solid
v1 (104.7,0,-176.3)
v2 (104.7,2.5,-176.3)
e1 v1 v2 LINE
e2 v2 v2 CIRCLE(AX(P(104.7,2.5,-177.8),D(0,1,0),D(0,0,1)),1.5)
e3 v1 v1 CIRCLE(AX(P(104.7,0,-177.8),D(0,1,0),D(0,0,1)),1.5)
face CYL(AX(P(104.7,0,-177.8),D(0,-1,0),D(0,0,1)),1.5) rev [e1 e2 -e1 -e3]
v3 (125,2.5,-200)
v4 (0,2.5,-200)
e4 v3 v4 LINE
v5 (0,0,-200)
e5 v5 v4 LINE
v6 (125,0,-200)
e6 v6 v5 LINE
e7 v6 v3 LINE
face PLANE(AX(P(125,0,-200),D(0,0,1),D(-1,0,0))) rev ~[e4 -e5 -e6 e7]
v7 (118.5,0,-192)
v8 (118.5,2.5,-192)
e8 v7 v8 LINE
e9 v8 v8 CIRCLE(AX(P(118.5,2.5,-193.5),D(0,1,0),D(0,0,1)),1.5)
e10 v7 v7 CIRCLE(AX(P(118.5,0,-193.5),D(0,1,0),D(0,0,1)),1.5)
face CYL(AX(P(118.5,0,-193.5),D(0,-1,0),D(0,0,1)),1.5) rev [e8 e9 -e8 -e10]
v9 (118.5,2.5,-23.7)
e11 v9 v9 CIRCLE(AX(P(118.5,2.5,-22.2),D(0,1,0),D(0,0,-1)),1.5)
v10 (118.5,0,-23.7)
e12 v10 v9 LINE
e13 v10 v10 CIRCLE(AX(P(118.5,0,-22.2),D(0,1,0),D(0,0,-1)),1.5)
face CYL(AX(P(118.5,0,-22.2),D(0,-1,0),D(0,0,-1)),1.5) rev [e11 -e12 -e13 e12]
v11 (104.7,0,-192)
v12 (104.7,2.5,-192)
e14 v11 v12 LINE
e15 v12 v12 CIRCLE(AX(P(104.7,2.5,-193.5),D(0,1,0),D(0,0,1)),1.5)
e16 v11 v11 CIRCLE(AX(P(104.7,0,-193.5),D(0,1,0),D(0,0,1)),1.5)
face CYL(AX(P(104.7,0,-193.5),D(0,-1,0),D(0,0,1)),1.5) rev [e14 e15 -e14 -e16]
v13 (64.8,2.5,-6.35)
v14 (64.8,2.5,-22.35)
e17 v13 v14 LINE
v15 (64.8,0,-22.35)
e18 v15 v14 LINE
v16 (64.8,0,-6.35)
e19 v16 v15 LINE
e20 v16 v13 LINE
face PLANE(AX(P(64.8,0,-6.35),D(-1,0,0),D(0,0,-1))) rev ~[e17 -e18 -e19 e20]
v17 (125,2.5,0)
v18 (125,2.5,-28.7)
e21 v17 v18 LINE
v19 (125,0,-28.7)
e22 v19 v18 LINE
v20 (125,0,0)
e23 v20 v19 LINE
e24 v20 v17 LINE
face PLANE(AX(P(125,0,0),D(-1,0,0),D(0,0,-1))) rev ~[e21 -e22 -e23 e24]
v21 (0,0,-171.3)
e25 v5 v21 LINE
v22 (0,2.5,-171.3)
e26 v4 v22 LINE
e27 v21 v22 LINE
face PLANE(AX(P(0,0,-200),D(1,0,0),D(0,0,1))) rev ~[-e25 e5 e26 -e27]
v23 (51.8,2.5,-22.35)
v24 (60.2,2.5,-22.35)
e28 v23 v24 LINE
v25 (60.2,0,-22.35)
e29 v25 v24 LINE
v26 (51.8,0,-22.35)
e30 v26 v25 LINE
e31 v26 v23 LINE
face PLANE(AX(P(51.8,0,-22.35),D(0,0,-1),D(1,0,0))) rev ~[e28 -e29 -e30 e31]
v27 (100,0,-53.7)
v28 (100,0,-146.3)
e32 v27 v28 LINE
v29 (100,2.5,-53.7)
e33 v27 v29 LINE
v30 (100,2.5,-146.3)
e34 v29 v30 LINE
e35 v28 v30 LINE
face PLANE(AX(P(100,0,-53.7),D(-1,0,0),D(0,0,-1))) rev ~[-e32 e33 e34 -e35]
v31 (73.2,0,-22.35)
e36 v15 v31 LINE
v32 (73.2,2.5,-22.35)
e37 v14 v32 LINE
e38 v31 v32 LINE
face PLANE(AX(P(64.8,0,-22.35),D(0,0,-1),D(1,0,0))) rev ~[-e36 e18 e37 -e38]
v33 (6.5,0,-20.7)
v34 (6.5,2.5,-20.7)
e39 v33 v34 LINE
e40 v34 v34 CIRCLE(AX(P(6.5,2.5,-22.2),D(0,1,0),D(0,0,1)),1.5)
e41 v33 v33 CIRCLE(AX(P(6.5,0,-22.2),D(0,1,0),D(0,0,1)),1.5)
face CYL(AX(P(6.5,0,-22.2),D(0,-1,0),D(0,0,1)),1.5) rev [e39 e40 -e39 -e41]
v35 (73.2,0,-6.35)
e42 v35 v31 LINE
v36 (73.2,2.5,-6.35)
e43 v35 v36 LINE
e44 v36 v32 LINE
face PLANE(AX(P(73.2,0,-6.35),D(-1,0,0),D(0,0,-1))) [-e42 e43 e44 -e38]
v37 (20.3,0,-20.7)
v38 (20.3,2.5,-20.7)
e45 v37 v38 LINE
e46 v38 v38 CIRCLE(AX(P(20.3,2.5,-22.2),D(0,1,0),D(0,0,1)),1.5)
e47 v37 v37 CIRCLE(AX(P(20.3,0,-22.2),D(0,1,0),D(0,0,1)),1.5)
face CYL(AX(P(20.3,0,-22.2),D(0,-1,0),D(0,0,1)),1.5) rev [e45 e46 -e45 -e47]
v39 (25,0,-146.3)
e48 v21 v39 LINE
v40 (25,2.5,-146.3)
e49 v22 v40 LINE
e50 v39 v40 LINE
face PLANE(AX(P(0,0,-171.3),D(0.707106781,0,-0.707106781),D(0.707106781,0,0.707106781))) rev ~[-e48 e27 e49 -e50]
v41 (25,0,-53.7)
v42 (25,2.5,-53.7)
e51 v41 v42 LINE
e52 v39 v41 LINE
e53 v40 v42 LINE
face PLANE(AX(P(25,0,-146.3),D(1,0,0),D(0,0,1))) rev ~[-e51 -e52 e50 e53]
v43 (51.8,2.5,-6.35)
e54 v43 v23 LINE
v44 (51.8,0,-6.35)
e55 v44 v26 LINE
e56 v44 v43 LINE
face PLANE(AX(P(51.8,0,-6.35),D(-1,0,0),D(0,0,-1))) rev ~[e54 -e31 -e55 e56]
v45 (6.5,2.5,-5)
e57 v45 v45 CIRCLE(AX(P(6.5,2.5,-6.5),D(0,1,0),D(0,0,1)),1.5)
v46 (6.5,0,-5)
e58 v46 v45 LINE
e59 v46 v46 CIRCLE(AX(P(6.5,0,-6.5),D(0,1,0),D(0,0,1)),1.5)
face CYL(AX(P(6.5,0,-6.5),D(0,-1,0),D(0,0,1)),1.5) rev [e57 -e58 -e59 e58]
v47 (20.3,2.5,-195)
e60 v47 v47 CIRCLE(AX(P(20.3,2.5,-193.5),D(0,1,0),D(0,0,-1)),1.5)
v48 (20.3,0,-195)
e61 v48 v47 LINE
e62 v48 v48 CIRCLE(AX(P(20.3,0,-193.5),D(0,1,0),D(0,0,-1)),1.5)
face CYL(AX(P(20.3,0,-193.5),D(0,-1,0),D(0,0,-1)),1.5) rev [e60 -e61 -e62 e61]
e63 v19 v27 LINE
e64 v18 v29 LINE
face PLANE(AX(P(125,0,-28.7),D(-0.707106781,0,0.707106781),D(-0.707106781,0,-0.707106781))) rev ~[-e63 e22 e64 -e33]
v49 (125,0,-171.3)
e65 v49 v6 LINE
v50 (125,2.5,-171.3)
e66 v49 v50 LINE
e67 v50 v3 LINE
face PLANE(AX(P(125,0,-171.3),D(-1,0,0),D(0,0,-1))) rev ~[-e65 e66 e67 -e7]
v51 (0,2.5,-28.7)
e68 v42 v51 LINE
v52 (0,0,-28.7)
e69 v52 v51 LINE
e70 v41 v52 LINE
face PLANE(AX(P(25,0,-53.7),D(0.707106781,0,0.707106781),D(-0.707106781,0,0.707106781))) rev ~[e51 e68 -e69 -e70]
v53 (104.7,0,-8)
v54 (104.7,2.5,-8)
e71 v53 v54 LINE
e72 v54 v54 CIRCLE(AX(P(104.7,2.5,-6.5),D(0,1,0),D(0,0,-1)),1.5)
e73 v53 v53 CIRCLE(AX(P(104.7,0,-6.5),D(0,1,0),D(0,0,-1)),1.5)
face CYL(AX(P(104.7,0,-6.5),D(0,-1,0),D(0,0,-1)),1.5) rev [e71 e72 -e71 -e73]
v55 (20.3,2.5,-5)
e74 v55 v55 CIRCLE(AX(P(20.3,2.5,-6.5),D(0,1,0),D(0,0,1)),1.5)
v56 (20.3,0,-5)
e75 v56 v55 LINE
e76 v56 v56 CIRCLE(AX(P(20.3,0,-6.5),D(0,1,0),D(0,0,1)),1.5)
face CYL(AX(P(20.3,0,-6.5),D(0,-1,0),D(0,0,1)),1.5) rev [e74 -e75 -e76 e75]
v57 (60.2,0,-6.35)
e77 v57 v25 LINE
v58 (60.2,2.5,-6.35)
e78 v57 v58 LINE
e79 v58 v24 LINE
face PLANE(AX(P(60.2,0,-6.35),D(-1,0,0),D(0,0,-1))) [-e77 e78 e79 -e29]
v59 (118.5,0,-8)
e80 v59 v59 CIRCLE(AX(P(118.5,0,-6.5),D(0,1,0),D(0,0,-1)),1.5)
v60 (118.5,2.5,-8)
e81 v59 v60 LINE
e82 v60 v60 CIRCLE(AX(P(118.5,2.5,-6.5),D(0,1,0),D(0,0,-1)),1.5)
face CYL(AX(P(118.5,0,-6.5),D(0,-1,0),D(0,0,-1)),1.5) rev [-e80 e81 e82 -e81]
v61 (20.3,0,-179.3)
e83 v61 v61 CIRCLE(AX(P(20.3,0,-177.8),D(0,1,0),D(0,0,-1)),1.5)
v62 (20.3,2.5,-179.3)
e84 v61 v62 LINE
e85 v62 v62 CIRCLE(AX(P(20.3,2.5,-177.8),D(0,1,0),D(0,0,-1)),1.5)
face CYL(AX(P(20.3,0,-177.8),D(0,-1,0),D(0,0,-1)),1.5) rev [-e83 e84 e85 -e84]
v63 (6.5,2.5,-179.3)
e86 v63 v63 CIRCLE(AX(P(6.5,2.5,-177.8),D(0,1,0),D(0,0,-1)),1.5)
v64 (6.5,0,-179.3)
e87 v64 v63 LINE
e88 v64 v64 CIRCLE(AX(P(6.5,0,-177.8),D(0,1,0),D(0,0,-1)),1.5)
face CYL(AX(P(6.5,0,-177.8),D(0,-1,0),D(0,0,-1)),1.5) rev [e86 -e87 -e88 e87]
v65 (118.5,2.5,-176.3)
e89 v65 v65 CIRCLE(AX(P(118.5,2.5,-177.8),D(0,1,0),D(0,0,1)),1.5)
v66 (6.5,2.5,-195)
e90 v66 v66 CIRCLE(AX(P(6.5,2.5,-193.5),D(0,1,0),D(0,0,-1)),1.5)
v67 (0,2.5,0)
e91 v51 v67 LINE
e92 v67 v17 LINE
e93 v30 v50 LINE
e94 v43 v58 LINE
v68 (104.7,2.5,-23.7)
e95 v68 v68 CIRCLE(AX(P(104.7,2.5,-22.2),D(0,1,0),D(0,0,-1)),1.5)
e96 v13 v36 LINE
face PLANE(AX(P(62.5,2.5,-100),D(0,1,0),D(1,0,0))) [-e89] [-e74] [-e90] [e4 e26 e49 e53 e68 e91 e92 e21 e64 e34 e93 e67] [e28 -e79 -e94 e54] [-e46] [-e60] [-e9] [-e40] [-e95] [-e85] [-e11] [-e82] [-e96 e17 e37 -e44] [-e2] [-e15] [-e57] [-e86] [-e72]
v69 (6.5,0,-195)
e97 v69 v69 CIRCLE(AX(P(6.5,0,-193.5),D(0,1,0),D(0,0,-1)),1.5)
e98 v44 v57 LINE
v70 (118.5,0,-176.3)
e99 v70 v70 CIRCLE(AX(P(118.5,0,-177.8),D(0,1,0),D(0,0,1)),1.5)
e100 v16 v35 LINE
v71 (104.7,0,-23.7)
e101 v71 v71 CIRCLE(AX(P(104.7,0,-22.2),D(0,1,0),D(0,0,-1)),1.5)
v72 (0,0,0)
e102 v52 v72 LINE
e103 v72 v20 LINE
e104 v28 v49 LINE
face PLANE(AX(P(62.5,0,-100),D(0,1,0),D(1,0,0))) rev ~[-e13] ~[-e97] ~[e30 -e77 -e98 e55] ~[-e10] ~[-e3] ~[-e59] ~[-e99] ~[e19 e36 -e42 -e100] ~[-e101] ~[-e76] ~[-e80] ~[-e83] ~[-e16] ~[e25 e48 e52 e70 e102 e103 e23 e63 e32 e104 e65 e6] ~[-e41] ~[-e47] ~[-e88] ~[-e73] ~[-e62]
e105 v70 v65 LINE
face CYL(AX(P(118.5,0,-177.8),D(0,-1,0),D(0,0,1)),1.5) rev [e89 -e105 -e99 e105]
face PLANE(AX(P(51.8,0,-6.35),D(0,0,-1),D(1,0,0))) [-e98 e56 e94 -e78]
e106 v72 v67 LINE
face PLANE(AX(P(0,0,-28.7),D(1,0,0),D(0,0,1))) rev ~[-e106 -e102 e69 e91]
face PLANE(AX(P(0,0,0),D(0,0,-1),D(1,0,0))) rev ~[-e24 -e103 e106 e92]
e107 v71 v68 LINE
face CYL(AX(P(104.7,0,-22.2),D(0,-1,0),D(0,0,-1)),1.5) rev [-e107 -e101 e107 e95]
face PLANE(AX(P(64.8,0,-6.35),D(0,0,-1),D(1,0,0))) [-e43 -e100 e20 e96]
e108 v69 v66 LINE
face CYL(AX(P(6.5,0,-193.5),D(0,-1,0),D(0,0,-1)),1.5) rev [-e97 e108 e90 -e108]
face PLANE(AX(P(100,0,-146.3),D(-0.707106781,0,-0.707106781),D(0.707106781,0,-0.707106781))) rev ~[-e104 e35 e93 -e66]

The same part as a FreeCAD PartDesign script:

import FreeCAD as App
import Part
import Sketcher
Q = App.Units.Quantity


def add_polygon(sketch, points):
    """Adds a closed chain of lines whose ends are joined by coincident constraints."""
    first, n = sketch.GeometryCount, len(points)
    for a, b in zip(points, points[1:] + points[:1]):
        sketch.addGeometry(Part.LineSegment(App.Vector(*a, 0), App.Vector(*b, 0)), False)
    for i in range(n):
        sketch.addConstraint(Sketcher.Constraint("Coincident", first + i, 2, first + (i + 1) % n, 1))

doc = App.newDocument("Part")
params = doc.addObject("Spreadsheet::Sheet", "Params")
for row, (alias, value) in enumerate([
    ("sketch1_diameter", "3 mm"),
    ("sketch1_width", "125 mm"),
    ("sketch1_height", "16 mm"),
    ("sketch1_width2", "8.4 mm"),
    ("sketch1_height2", "28.7 mm"),
    ("pad1_length", "2.5 mm"),
], start=1):
    params.set(f"A{row}", alias)
    params.set(f"B{row}", "=" + value)
    params.setAlias(f"B{row}", alias)

body = doc.addObject("PartDesign::Body", "Body")

# Sketch on XZ plane
sketch1 = doc.addObject("Sketcher::SketchObject", "Sketch")
body.addObject(sketch1)
sketch1.AttachmentSupport = (doc.XZ_Plane, [""])
sketch1.MapMode = "FlatFace"
add_polygon(sketch1, [(0, 0), (125, 0), (125, -28.7), (100, -53.7), (100, -146.3), (125, -171.3), (125, -200), (0, -200), (0, -171.3), (25, -146.3), (25, -53.7), (0, -28.7)])  # lines 0-11
sketch1.addGeometry(Part.Circle(App.Vector(6.5, -6.5, 0), App.Vector(0, 0, 1), 1.5), False)  # 12
sketch1.addGeometry(Part.Circle(App.Vector(6.5, -22.2, 0), App.Vector(0, 0, 1), 1.5), False)  # 13
sketch1.addGeometry(Part.Circle(App.Vector(20.3, -6.5, 0), App.Vector(0, 0, 1), 1.5), False)  # 14
sketch1.addGeometry(Part.Circle(App.Vector(20.3, -22.2, 0), App.Vector(0, 0, 1), 1.5), False)  # 15
add_polygon(sketch1, [(60.2, -6.3), (51.8, -6.3), (51.8, -22.4), (60.2, -22.4)])  # lines 16-19
add_polygon(sketch1, [(73.2, -6.3), (64.8, -6.3), (64.8, -22.4), (73.2, -22.4)])  # lines 20-23
sketch1.addGeometry(Part.Circle(App.Vector(104.7, -6.5, 0), App.Vector(0, 0, 1), 1.5), False)  # 24
sketch1.addGeometry(Part.Circle(App.Vector(104.7, -22.2, 0), App.Vector(0, 0, 1), 1.5), False)  # 25
sketch1.addGeometry(Part.Circle(App.Vector(118.5, -6.5, 0), App.Vector(0, 0, 1), 1.5), False)  # 26
sketch1.addGeometry(Part.Circle(App.Vector(118.5, -22.2, 0), App.Vector(0, 0, 1), 1.5), False)  # 27
sketch1.addGeometry(Part.Circle(App.Vector(6.5, -177.8, 0), App.Vector(0, 0, 1), 1.5), False)  # 28
sketch1.addGeometry(Part.Circle(App.Vector(6.5, -193.5, 0), App.Vector(0, 0, 1), 1.5), False)  # 29
sketch1.addGeometry(Part.Circle(App.Vector(20.3, -177.8, 0), App.Vector(0, 0, 1), 1.5), False)  # 30
sketch1.addGeometry(Part.Circle(App.Vector(20.3, -193.5, 0), App.Vector(0, 0, 1), 1.5), False)  # 31
sketch1.addGeometry(Part.Circle(App.Vector(104.7, -177.8, 0), App.Vector(0, 0, 1), 1.5), False)  # 32
sketch1.addGeometry(Part.Circle(App.Vector(104.7, -193.5, 0), App.Vector(0, 0, 1), 1.5), False)  # 33
sketch1.addGeometry(Part.Circle(App.Vector(118.5, -177.8, 0), App.Vector(0, 0, 1), 1.5), False)  # 34
sketch1.addGeometry(Part.Circle(App.Vector(118.5, -193.5, 0), App.Vector(0, 0, 1), 1.5), False)  # 35
sketch1.addConstraint(Sketcher.Constraint("Horizontal", 0))
sketch1.addConstraint(Sketcher.Constraint("Vertical", 1))
sketch1.addConstraint(Sketcher.Constraint("Vertical", 3))
sketch1.addConstraint(Sketcher.Constraint("Vertical", 5))
sketch1.addConstraint(Sketcher.Constraint("Horizontal", 6))
sketch1.addConstraint(Sketcher.Constraint("Vertical", 7))
sketch1.addConstraint(Sketcher.Constraint("Vertical", 9))
sketch1.addConstraint(Sketcher.Constraint("Vertical", 11))
sketch1.addConstraint(Sketcher.Constraint("Horizontal", 16))
sketch1.addConstraint(Sketcher.Constraint("Vertical", 17))
sketch1.addConstraint(Sketcher.Constraint("Horizontal", 18))
sketch1.addConstraint(Sketcher.Constraint("Vertical", 19))
sketch1.addConstraint(Sketcher.Constraint("Horizontal", 20))
sketch1.addConstraint(Sketcher.Constraint("Vertical", 21))
sketch1.addConstraint(Sketcher.Constraint("Horizontal", 22))
sketch1.addConstraint(Sketcher.Constraint("Vertical", 23))
sketch1.addConstraint(Sketcher.Constraint("Coincident", 11, 2, -1, 1))
sketch1.addConstraint(Sketcher.Constraint("Equal", 12, 13))
sketch1.addConstraint(Sketcher.Constraint("Equal", 13, 14))
sketch1.addConstraint(Sketcher.Constraint("Equal", 14, 15))
sketch1.addConstraint(Sketcher.Constraint("Equal", 15, 24))
sketch1.addConstraint(Sketcher.Constraint("Equal", 24, 25))
sketch1.addConstraint(Sketcher.Constraint("Equal", 25, 26))
sketch1.addConstraint(Sketcher.Constraint("Equal", 26, 27))
sketch1.addConstraint(Sketcher.Constraint("Equal", 27, 28))
sketch1.addConstraint(Sketcher.Constraint("Equal", 28, 29))
sketch1.addConstraint(Sketcher.Constraint("Equal", 29, 30))
sketch1.addConstraint(Sketcher.Constraint("Equal", 30, 31))
sketch1.addConstraint(Sketcher.Constraint("Equal", 31, 32))
sketch1.addConstraint(Sketcher.Constraint("Equal", 32, 33))
sketch1.addConstraint(Sketcher.Constraint("Equal", 33, 34))
sketch1.addConstraint(Sketcher.Constraint("Equal", 34, 35))
sketch1.addConstraint(Sketcher.Constraint("PointOnObject", 6, 2, -2))
sketch1.addConstraint(Sketcher.Constraint("Perpendicular", 2, 4))
sketch1.addConstraint(Sketcher.Constraint("Perpendicular", 4, 8))
sketch1.addConstraint(Sketcher.Constraint("Perpendicular", 8, 10))
sketch1.addConstraint(Sketcher.Constraint("Horizontal", 12, 3, 14, 3))
sketch1.addConstraint(Sketcher.Constraint("Horizontal", 13, 3, 15, 3))
sketch1.addConstraint(Sketcher.Constraint("Horizontal", 14, 3, 24, 3))
sketch1.addConstraint(Sketcher.Constraint("Horizontal", 15, 3, 25, 3))
sketch1.addConstraint(Sketcher.Constraint("Horizontal", 24, 3, 26, 3))
sketch1.addConstraint(Sketcher.Constraint("Horizontal", 25, 3, 27, 3))
sketch1.addConstraint(Sketcher.Constraint("Horizontal", 28, 3, 30, 3))
sketch1.addConstraint(Sketcher.Constraint("Horizontal", 29, 3, 31, 3))
sketch1.addConstraint(Sketcher.Constraint("Horizontal", 30, 3, 32, 3))
sketch1.addConstraint(Sketcher.Constraint("Horizontal", 31, 3, 33, 3))
sketch1.addConstraint(Sketcher.Constraint("Horizontal", 32, 3, 34, 3))
sketch1.addConstraint(Sketcher.Constraint("Horizontal", 33, 3, 35, 3))
sketch1.addConstraint(Sketcher.Constraint("Horizontal", 4, 2, 7, 2))
sketch1.addConstraint(Sketcher.Constraint("Horizontal", 3, 2, 8, 2))
sketch1.addConstraint(Sketcher.Constraint("Horizontal", 2, 2, 9, 2))
sketch1.addConstraint(Sketcher.Constraint("Horizontal", 1, 2, 10, 2))
sketch1.addConstraint(Sketcher.Constraint("Horizontal", 19, 2, 20, 2))
sketch1.addConstraint(Sketcher.Constraint("Horizontal", 18, 2, 21, 2))
sketch1.addConstraint(Sketcher.Constraint("Vertical", 12, 3, 13, 3))
sketch1.addConstraint(Sketcher.Constraint("Vertical", 14, 3, 15, 3))
sketch1.addConstraint(Sketcher.Constraint("Vertical", 24, 3, 25, 3))
sketch1.addConstraint(Sketcher.Constraint("Vertical", 26, 3, 27, 3))
sketch1.addConstraint(Sketcher.Constraint("Vertical", 13, 3, 28, 3))
sketch1.addConstraint(Sketcher.Constraint("Vertical", 28, 3, 29, 3))
sketch1.addConstraint(Sketcher.Constraint("Vertical", 15, 3, 30, 3))
sketch1.addConstraint(Sketcher.Constraint("Vertical", 30, 3, 31, 3))
sketch1.addConstraint(Sketcher.Constraint("Vertical", 25, 3, 32, 3))
sketch1.addConstraint(Sketcher.Constraint("Vertical", 32, 3, 33, 3))
sketch1.addConstraint(Sketcher.Constraint("Vertical", 27, 3, 34, 3))
sketch1.addConstraint(Sketcher.Constraint("Vertical", 34, 3, 35, 3))
sketch1.addConstraint(Sketcher.Constraint("Vertical", 1, 2, 4, 2))
sketch1.addConstraint(Sketcher.Constraint("Equal", 18, 20))
sketch1.addConstraint(Sketcher.Constraint("Equal", 1, 5))
sketch1.addConstraint(Sketcher.Constraint("Diameter", 12, Q("3 mm")))
sketch1.addConstraint(Sketcher.Constraint("DistanceX", 0, 1, 0, 2, Q("125 mm")))
sketch1.addConstraint(Sketcher.Constraint("DistanceY", 17, 2, 17, 1, Q("16 mm")))
sketch1.addConstraint(Sketcher.Constraint("DistanceX", 16, 2, 16, 1, Q("8.4 mm")))
sketch1.addConstraint(Sketcher.Constraint("DistanceY", 1, 2, 1, 1, Q("28.7 mm")))
sketch1.addConstraint(Sketcher.Constraint("DistanceY", 3, 2, 3, 1, Q("92.6 mm")))
sketch1.addConstraint(Sketcher.Constraint("DistanceX", -1, 1, 2, 2, Q("100 mm")))
sketch1.addConstraint(Sketcher.Constraint("DistanceX", 12, 3, 26, 3, Q("112 mm")))
sketch1.addConstraint(Sketcher.Constraint("DistanceY", 29, 3, 12, 3, Q("187 mm")))
sketch1.addConstraint(Sketcher.Constraint("DistanceX", 16, 2, 20, 2, Q("13 mm")))
sketch1.addConstraint(Sketcher.Constraint("DistanceX", -1, 1, 12, 3, Q("6.5 mm")))
sketch1.addConstraint(Sketcher.Constraint("DistanceY", 12, 3, -1, 1, Q("6.5 mm")))
sketch1.addConstraint(Sketcher.Constraint("DistanceY", 13, 3, -1, 1, Q("22.2 mm")))
sketch1.addConstraint(Sketcher.Constraint("DistanceX", -1, 1, 14, 3, Q("20.3 mm")))
sketch1.addConstraint(Sketcher.Constraint("DistanceX", -1, 1, 24, 3, Q("104.7 mm")))
sketch1.addConstraint(Sketcher.Constraint("DistanceY", 28, 3, -1, 1, Q("177.8 mm")))
sketch1.addConstraint(Sketcher.Constraint("DistanceX", -1, 1, 16, 2, Q("51.8 mm")))
sketch1.addConstraint(Sketcher.Constraint("DistanceY", 16, 2, -1, 1, Q("6.35 mm")))
sketch1.setExpression("Constraints[89]", "Params.sketch1_diameter")
sketch1.setExpression("Constraints[90]", "Params.sketch1_width")
sketch1.setExpression("Constraints[91]", "Params.sketch1_height")
sketch1.setExpression("Constraints[92]", "Params.sketch1_width2")
sketch1.setExpression("Constraints[93]", "Params.sketch1_height2")
pad1 = doc.addObject("PartDesign::Pad", "Pad")
body.addObject(pad1)
pad1.Profile = sketch1
pad1.setExpression("Length", "Params.pad1_length")
pad1.Reversed = True

doc.recompute()
